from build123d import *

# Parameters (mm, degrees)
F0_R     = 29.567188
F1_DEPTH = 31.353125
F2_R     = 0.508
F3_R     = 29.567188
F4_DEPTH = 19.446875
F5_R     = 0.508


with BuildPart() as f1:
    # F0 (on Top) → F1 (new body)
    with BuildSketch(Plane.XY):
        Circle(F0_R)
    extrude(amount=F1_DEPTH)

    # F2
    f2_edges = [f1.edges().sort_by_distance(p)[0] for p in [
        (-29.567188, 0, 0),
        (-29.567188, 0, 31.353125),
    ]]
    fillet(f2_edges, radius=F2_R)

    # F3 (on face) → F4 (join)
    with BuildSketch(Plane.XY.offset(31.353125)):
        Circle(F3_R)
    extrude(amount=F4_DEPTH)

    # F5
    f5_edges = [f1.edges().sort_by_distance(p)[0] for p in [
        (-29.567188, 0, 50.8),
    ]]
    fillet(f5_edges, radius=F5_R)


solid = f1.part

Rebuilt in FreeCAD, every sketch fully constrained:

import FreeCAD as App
import Part
import Sketcher
from FreeCAD import Vector
Q = App.Units.Quantity


def edges_at(feature, points):
    """Names of the edges that pass closest to the given points."""
    edges = feature.Shape.Edges
    near = lambda p: min(range(len(edges)), key=lambda i: edges[i].distToShape(Part.Vertex(*p))[0])
    return sorted({f"Edge{near(p) + 1}" for p in points})

doc = App.newDocument("Part")
params = doc.addObject("Spreadsheet::Sheet", "Params")
for row, (alias, value) in enumerate([
    ("sketch1_diameter", "2.328125 in"),
    ("pad1_length", "1.234375 in"),
    ("fillet_radius", "0.02 in"),
    ("sketch2_diameter", "2.328125 in"),
    ("pad2_length", "0.765625 in"),
    ("fillet2_radius", "0.02 in"),
], start=1):
    params.set(f"A{row}", alias)
    params.set(f"B{row}", "=" + value)
    params.setAlias(f"B{row}", alias)

body = doc.addObject("PartDesign::Body", "Body")

# Sketch on XY plane
sketch1 = body.newObject("Sketcher::SketchObject", "Sketch")
sketch1.AttachmentSupport = (doc.getObject("XY_Plane"), [""])
sketch1.MapMode = "FlatFace"
sketch1.addGeometry(Part.Circle(Vector(0, 0, 0), Vector(0, 0, 1), 30), False)
sketch1.addConstraint(Sketcher.Constraint("Coincident", 0, 3, -1, 1))
sketch1.addConstraint(Sketcher.Constraint("Diameter", 0, Q("2.328125 in")))
sketch1.setExpression("Constraints[1]", "Params.sketch1_diameter")
pad1 = body.newObject("PartDesign::Pad", "Pad")
pad1.Profile = sketch1
pad1.setExpression("Length", "Params.pad1_length")
doc.recompute()

fillet = body.newObject("PartDesign::Fillet", "Fillet")
fillet.Base = (pad1, edges_at(pad1, [(-29.567, 0, 0), (-29.567, 0, 31.353)]))
fillet.setExpression("Radius", "Params.fillet_radius")

# Sketch on XY plane
sketch2 = body.newObject("Sketcher::SketchObject", "Sketch001")
sketch2.AttachmentSupport = (doc.getObject("XY_Plane"), [""])
sketch2.MapMode = "FlatFace"
sketch2.AttachmentOffset = App.Placement(Vector(0, 0, 1.234375 * 25.4), App.Rotation())
sketch2.addGeometry(Part.Circle(Vector(0, 0, 0), Vector(0, 0, 1), 30), False)
sketch2.addConstraint(Sketcher.Constraint("Coincident", 0, 3, -1, 1))
sketch2.addConstraint(Sketcher.Constraint("Diameter", 0, Q("2.328125 in")))
sketch2.setExpression("Constraints[1]", "Params.sketch2_diameter")
pad2 = body.newObject("PartDesign::Pad", "Pad001")
pad2.Profile = sketch2
pad2.setExpression("Length", "Params.pad2_length")
doc.recompute()

fillet2 = body.newObject("PartDesign::Fillet", "Fillet001")
fillet2.Base = (pad2, edges_at(pad2, [(-29.567, 0, 50.8)]))
fillet2.setExpression("Radius", "Params.fillet2_radius")

doc.recompute()
